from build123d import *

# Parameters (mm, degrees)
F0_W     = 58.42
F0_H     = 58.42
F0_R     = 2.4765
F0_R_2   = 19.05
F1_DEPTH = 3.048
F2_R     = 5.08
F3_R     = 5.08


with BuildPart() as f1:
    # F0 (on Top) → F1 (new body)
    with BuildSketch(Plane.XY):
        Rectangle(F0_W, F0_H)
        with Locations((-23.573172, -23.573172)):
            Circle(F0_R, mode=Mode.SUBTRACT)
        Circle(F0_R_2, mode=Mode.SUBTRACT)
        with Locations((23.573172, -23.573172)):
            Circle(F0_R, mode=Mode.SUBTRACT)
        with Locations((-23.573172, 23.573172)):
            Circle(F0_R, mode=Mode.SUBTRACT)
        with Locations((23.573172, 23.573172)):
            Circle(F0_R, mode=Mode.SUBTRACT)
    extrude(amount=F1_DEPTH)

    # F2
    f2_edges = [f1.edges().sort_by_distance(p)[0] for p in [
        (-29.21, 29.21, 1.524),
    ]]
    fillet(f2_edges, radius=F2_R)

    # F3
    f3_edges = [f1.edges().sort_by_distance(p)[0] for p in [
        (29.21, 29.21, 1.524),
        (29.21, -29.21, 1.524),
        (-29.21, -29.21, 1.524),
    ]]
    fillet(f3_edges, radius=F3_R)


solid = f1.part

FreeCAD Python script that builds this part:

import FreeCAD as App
import Part
import Sketcher

V = App.Vector
Q = App.Units.Quantity


def edges_at(feature, points):
    """Names of the edges that pass closest to the given points."""
    edges = feature.Shape.Edges
    near = lambda p: min(range(len(edges)), key=lambda i: edges[i].distToShape(Part.Vertex(*p))[0])
    return sorted({f"Edge{near(p) + 1}" for p in points})


def add_polygon(sketch, points):
    """Adds a closed chain of lines whose ends are joined by coincident constraints."""
    first, n = sketch.GeometryCount, len(points)
    for a, b in zip(points, points[1:] + points[:1]):
        sketch.addGeometry(Part.LineSegment(App.Vector(*a, 0), App.Vector(*b, 0)), False)
    for i in range(n):
        sketch.addConstraint(Sketcher.Constraint("Coincident", first + i, 2, first + (i + 1) % n, 1))

doc = App.newDocument("Part")
body = doc.addObject("PartDesign::Body", "Body")

sketch1 = body.newObject("Sketcher::SketchObject", "Sketch")
sketch1.AttachmentSupport = (doc.getObject("XY_Plane"), [""])
sketch1.MapMode = "FlatFace"
add_polygon(sketch1, [(-29.2, 29.2), (-29.2, -29.2), (29.2, -29.2), (29.2, 29.2)])
sketch1.addGeometry(Part.Circle(V(-23.6, -23.6, 0), V(0, 0, 1), 2.5), False)
sketch1.addGeometry(Part.Circle(V(23.6, -23.6, 0), V(0, 0, 1), 2.5), False)
sketch1.addGeometry(Part.Circle(V(-23.6, 23.6, 0), V(0, 0, 1), 2.5), False)
sketch1.addGeometry(Part.Circle(V(0, 0, 0), V(0, 0, 1), 19.1), False)
sketch1.addGeometry(Part.Circle(V(23.6, 23.6, 0), V(0, 0, 1), 2.5), False)
sketch1.addConstraint([
    Sketcher.Constraint("Vertical", 0),
    Sketcher.Constraint("Horizontal", 1),
    Sketcher.Constraint("Vertical", 2),
    Sketcher.Constraint("Horizontal", 3),
    Sketcher.Constraint("Coincident", 7, 3, -1, 1),
    Sketcher.Constraint("Equal", 4, 5),
    Sketcher.Constraint("Equal", 5, 6),
    Sketcher.Constraint("Equal", 6, 8),
    Sketcher.Constraint("Symmetric", 5, 3, 6, 3, -1, 1),
    Sketcher.Constraint("Symmetric", 4, 3, 8, 3, -1, 1),
    Sketcher.Constraint("Symmetric", 0, 2, 2, 2, -1, 1),
    Sketcher.Constraint("Symmetric", 4, 3, 5, 3, -2),
    Sketcher.Constraint("Equal", 3, 0),
    Sketcher.Constraint("Diameter", 7, Q("1.5 in")),
    Sketcher.Constraint("Diameter", 4, Q("0.195 in")),
    Sketcher.Constraint("DistanceX", 1, 1, 1, 2, Q("2.3 in")),
    Sketcher.Constraint("DistanceX", 4, 3, -1, 1, Q("23.573172 mm")),
    Sketcher.Constraint("DistanceY", 4, 3, -1, 1, Q("23.573172 mm")),
])
pad1 = body.newObject("PartDesign::Pad", "Pad")
pad1.Profile = sketch1
pad1.Length = Q("0.12 in")
doc.recompute()

fillet = body.newObject("PartDesign::Fillet", "Fillet")
fillet.Base = (pad1, edges_at(pad1, [(-29.21, 29.21, 1.524)]))
fillet.Radius = Q("0.2 in")
doc.recompute()

fillet2 = body.newObject("PartDesign::Fillet", "Fillet001")
fillet2.Base = (fillet, edges_at(fillet, [(29.21, 29.21, 1.524), (29.21, -29.21, 1.524), (-29.21, -29.21, 1.524)]))
fillet2.Radius = Q("0.2 in")

doc.recompute()
